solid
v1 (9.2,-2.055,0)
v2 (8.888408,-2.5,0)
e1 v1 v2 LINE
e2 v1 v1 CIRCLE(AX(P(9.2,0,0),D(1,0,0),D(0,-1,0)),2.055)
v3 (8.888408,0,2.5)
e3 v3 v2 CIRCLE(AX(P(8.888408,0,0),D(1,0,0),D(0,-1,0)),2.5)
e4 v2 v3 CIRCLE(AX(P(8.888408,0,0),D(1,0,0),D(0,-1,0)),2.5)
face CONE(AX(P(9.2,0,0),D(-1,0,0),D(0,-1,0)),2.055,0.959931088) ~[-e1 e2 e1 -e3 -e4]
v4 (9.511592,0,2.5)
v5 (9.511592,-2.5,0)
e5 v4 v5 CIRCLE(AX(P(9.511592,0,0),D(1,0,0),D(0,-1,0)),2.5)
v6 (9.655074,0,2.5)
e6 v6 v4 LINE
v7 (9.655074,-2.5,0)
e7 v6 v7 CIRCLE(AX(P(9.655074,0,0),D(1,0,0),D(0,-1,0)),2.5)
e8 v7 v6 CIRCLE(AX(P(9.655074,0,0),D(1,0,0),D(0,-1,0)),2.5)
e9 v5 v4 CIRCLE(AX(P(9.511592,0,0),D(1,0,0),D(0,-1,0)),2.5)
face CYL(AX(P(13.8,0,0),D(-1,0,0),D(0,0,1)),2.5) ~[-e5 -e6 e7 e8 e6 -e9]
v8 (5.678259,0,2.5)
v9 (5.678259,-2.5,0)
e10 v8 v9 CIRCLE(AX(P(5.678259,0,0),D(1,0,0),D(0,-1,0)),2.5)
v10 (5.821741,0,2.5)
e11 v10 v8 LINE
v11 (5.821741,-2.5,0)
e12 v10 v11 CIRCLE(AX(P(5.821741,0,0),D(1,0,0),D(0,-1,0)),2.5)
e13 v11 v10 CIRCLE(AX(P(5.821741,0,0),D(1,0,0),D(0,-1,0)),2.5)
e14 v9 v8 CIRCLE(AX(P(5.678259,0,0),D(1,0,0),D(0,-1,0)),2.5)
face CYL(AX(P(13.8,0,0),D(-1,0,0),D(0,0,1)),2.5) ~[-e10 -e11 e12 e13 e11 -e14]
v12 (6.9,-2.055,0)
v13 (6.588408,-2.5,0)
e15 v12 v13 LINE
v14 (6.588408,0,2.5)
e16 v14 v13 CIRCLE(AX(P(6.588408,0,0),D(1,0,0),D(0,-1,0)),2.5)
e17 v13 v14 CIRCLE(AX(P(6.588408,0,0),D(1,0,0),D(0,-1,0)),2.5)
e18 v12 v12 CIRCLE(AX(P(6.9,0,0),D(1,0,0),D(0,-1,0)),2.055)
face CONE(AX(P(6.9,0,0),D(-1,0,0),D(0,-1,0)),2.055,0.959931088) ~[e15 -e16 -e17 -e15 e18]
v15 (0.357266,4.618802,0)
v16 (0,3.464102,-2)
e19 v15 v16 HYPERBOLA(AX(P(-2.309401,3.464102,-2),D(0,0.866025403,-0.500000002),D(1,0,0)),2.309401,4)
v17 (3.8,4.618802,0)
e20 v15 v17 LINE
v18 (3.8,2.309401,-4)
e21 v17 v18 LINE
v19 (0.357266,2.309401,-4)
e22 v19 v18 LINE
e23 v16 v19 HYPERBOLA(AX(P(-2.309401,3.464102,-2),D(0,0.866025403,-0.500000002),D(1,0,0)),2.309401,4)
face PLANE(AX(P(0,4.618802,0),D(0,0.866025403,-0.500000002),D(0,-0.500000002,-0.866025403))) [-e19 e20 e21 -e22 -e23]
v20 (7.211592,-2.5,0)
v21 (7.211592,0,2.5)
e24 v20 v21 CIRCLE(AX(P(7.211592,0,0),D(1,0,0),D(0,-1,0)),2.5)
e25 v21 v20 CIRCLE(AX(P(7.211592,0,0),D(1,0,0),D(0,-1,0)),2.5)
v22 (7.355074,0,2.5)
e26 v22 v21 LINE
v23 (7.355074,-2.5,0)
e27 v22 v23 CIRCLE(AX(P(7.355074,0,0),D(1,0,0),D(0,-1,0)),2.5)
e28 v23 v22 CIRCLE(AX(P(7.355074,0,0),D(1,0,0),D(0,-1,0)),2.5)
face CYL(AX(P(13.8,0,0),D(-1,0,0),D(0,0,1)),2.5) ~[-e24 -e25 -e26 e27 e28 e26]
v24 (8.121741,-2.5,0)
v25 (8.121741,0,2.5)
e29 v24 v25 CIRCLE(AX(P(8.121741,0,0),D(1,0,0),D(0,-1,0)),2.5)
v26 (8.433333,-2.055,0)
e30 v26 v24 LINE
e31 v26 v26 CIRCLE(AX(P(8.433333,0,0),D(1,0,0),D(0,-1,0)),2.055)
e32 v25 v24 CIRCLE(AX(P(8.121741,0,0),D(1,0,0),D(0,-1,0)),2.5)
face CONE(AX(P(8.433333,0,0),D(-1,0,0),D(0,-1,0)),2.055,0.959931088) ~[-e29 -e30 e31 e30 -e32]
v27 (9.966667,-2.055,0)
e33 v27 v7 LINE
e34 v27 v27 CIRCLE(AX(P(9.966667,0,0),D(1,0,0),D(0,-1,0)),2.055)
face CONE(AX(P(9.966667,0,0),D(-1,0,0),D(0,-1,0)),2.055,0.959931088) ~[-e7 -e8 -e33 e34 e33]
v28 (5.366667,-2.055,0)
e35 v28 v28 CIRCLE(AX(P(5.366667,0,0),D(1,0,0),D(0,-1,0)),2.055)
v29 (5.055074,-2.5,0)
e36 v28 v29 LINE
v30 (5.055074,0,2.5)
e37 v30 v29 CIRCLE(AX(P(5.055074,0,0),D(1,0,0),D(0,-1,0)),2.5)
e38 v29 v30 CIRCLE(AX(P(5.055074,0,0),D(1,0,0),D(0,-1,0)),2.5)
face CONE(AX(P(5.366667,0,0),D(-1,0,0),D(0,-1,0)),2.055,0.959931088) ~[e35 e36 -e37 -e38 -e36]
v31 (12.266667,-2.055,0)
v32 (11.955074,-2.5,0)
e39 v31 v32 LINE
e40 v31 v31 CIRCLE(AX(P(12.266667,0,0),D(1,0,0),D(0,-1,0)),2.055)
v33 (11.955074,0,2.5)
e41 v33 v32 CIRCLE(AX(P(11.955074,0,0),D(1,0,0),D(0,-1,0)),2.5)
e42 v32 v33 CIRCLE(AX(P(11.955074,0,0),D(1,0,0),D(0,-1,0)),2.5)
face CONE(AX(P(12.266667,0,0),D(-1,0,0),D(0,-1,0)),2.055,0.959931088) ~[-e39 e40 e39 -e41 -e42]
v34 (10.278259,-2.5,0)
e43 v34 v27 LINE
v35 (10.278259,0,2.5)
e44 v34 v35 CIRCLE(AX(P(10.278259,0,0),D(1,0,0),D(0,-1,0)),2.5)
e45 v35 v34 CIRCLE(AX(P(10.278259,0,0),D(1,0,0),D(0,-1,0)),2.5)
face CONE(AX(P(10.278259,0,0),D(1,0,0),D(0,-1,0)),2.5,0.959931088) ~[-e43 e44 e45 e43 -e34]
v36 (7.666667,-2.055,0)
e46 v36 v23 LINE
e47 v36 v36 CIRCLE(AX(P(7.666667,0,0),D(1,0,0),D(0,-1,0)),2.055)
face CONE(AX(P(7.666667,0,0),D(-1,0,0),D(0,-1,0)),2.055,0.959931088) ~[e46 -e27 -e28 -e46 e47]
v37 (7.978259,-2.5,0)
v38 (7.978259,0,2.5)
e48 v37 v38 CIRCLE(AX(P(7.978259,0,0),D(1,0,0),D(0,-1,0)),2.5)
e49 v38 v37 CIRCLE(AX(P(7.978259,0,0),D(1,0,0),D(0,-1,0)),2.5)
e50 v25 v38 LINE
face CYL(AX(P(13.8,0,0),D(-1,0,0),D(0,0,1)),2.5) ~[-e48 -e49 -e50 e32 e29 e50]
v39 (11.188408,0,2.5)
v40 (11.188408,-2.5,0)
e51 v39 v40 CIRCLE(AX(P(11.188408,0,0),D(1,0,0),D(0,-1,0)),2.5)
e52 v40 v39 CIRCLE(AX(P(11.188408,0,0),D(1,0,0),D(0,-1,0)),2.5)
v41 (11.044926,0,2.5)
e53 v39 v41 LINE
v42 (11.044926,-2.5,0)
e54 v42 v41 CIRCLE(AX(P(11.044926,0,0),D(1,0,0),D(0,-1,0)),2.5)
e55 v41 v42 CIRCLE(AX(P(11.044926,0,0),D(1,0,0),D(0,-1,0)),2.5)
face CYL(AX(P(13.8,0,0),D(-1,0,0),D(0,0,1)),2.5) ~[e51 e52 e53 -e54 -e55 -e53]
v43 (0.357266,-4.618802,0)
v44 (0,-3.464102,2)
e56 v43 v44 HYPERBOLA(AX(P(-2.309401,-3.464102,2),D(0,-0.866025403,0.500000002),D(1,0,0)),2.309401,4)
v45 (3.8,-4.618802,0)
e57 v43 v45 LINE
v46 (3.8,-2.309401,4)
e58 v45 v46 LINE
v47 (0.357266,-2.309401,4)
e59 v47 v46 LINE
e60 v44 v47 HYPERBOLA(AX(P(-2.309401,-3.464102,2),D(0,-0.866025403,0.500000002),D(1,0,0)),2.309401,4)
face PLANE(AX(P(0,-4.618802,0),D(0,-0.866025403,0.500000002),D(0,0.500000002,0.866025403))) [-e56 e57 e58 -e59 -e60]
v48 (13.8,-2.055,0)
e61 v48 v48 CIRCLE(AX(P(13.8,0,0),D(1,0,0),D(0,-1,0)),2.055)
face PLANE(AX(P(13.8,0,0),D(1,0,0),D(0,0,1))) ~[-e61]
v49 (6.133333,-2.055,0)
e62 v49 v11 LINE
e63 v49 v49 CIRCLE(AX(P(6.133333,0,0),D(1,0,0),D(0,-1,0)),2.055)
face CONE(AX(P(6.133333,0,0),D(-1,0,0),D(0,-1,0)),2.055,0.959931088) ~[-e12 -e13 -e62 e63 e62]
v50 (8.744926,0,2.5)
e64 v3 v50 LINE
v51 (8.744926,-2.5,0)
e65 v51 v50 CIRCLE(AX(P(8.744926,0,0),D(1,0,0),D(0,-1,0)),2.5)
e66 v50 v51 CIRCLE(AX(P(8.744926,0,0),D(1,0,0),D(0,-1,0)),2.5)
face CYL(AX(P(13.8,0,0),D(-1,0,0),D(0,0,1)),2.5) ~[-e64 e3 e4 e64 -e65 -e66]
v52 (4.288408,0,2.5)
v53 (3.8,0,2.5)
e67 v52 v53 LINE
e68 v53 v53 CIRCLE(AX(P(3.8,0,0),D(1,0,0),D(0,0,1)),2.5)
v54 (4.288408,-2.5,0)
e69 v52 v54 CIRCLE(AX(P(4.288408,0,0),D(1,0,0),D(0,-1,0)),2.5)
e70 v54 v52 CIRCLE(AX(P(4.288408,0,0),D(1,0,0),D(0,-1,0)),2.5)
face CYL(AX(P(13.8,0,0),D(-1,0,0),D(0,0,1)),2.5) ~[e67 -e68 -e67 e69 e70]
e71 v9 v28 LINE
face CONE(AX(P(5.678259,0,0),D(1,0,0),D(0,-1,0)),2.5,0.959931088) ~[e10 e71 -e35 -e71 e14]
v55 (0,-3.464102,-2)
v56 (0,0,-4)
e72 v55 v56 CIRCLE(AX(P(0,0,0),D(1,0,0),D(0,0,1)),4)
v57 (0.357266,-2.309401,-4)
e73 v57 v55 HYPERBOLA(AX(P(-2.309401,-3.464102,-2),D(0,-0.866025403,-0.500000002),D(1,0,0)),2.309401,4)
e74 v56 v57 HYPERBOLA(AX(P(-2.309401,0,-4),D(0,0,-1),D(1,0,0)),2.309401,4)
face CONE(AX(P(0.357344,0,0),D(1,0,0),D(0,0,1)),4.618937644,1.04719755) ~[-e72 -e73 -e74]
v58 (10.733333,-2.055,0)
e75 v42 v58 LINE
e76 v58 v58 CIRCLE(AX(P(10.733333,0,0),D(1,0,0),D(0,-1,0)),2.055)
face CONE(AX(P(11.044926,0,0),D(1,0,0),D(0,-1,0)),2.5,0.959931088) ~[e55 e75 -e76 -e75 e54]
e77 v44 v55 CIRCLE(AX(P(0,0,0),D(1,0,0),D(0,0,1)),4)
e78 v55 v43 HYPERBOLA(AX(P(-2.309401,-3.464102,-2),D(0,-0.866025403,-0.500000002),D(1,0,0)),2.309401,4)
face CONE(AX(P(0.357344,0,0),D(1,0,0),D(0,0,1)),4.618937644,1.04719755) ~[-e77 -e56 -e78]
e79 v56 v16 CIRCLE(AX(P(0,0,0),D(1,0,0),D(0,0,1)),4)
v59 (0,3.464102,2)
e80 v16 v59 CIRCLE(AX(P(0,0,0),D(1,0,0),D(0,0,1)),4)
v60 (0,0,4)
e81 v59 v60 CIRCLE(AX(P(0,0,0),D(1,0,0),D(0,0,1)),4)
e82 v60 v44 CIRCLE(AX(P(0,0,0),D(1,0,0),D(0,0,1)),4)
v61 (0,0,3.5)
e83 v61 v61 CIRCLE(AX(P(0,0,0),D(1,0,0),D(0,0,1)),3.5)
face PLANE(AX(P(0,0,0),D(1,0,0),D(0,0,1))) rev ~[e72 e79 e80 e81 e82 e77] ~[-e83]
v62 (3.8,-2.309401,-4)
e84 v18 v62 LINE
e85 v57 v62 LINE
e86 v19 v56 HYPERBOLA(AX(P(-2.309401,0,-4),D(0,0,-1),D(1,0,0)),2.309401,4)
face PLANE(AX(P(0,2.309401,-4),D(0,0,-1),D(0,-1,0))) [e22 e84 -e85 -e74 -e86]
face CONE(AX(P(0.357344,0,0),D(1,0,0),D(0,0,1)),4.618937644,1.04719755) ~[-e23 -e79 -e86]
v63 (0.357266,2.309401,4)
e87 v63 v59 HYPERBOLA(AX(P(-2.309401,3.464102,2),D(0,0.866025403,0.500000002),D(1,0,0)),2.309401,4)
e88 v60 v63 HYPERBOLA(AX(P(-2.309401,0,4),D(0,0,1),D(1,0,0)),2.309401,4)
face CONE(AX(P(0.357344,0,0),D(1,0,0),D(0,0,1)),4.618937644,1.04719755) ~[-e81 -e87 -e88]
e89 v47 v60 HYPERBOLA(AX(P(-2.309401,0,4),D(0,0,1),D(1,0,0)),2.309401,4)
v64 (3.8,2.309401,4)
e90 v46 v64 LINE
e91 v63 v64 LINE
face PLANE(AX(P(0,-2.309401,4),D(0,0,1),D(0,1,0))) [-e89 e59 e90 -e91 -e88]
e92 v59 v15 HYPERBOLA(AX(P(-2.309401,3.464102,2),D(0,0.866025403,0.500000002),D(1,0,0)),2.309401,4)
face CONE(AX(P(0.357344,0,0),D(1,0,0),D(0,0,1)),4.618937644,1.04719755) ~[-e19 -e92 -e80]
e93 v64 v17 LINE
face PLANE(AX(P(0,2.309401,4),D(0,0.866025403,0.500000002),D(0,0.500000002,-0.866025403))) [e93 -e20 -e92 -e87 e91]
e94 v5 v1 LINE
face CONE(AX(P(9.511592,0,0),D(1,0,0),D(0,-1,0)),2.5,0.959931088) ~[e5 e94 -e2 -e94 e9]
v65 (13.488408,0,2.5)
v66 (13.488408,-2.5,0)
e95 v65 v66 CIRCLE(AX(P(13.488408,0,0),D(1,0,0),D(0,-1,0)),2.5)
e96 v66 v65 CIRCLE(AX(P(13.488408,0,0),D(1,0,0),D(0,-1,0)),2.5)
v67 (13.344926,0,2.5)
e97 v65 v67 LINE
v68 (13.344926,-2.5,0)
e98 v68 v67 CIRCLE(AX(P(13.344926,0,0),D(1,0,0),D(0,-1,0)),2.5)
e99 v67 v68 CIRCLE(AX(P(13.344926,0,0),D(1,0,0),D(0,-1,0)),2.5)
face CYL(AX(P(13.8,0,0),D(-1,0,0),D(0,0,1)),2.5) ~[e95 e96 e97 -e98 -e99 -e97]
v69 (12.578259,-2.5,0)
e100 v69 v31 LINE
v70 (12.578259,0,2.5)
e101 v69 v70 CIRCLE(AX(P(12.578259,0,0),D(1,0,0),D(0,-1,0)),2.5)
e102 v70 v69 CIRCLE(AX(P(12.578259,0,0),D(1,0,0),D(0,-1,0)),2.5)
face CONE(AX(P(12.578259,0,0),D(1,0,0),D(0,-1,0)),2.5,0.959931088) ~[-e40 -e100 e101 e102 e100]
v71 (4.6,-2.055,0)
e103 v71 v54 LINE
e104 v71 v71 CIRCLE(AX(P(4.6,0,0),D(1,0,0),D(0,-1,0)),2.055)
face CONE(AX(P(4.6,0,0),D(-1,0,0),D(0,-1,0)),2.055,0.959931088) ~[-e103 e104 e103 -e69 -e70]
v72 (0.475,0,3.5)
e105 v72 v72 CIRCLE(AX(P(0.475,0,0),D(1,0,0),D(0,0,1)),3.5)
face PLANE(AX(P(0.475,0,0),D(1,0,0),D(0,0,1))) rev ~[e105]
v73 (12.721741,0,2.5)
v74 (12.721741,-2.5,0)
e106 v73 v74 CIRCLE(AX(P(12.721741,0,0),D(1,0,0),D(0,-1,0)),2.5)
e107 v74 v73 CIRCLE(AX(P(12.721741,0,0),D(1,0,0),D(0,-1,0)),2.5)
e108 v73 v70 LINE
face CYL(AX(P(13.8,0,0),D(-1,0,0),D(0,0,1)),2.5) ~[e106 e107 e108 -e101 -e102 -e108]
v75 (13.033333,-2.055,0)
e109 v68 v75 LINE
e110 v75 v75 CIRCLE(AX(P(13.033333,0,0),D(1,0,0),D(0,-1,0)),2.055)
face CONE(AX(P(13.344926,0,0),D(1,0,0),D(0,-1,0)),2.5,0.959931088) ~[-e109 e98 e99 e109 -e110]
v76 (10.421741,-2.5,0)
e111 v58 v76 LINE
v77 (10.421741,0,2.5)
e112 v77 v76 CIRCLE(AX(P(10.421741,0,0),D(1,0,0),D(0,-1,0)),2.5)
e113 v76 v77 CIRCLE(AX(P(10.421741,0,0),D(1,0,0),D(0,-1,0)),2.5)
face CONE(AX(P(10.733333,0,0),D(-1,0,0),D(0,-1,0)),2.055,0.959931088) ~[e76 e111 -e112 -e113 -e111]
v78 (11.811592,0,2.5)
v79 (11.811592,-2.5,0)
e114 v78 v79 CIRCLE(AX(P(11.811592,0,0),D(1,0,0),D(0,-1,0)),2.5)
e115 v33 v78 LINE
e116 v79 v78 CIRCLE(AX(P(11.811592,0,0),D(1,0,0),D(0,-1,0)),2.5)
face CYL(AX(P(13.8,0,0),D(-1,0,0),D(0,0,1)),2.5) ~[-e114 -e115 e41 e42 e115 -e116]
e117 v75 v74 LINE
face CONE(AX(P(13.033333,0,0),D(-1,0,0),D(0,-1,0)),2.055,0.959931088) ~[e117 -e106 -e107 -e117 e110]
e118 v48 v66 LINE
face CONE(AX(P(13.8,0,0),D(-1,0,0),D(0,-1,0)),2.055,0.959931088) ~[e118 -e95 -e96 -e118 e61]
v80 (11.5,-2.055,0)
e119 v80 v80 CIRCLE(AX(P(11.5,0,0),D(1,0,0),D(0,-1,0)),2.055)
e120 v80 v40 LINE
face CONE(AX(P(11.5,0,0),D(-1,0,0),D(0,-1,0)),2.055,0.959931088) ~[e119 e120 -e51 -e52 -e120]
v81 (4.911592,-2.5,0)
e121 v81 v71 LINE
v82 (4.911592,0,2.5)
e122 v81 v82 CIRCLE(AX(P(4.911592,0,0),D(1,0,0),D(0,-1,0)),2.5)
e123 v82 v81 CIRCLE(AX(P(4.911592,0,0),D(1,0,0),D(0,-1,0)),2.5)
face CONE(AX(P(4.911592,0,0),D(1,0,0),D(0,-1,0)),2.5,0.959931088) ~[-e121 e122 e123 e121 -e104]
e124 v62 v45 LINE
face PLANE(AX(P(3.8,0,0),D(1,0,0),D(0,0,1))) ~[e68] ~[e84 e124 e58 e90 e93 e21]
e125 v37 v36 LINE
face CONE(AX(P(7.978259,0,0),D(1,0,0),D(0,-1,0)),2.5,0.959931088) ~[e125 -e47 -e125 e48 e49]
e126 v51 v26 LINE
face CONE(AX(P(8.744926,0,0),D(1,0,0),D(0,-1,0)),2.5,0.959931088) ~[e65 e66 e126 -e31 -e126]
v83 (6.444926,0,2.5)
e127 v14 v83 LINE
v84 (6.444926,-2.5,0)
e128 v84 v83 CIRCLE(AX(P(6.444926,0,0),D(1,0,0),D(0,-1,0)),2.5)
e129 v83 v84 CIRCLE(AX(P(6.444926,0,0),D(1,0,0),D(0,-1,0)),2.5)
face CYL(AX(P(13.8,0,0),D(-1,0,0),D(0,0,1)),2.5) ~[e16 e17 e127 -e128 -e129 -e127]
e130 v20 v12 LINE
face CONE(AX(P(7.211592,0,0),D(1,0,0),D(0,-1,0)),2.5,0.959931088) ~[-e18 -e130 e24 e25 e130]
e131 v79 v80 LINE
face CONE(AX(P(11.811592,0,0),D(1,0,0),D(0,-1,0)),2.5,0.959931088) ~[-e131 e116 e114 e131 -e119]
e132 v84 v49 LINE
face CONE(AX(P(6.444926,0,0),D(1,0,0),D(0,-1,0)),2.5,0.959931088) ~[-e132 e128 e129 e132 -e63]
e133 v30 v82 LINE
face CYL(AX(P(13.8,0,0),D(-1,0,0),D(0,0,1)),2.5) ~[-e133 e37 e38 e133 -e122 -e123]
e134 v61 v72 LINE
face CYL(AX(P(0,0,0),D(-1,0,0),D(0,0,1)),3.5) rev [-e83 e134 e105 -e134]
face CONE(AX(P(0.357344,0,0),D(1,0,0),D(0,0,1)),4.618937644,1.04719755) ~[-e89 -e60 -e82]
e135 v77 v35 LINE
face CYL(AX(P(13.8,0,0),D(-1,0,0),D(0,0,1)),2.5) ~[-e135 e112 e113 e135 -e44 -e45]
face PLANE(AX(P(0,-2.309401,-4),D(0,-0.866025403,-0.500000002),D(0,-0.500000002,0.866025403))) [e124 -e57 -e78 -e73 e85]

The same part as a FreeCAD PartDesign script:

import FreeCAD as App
import Part
import Sketcher
from FreeCAD import Vector
Q = App.Units.Quantity


def add_polygon(sketch, points):
    """Adds a closed chain of lines whose ends are joined by coincident constraints."""
    first, n = sketch.GeometryCount, len(points)
    for a, b in zip(points, points[1:] + points[:1]):
        sketch.addGeometry(Part.LineSegment(App.Vector(*a, 0), App.Vector(*b, 0)), False)
    for i in range(n):
        sketch.addConstraint(Sketcher.Constraint("Coincident", first + i, 2, first + (i + 1) % n, 1))

doc = App.newDocument("Part")
body = doc.addObject("PartDesign::Body", "Body")

# Sketch on XY plane
sketch1 = doc.addObject("Sketcher::SketchObject", "Sketch")
body.addObject(sketch1)
sketch1.AttachmentSupport = (doc.XY_Plane, [""])
sketch1.MapMode = "FlatFace"
add_polygon(sketch1, [(3.8, 2.5), (3.8, 4.618938), (0.357344, 4.618938), (0, 4), (0, 0), (13.8, 0), (13.8, 2.5)])  # lines 0-6
sketch1.addConstraint(Sketcher.Constraint("Vertical", 0))
sketch1.addConstraint(Sketcher.Constraint("Horizontal", 1))
sketch1.addConstraint(Sketcher.Constraint("Vertical", 3))
sketch1.addConstraint(Sketcher.Constraint("Horizontal", 4))
sketch1.addConstraint(Sketcher.Constraint("Vertical", 5))
sketch1.addConstraint(Sketcher.Constraint("Horizontal", 6))
sketch1.addConstraint(Sketcher.Constraint("Coincident", 3, 2, -1, 1))
sketch1.addConstraint(Sketcher.Constraint("DistanceX", 6, 2, 6, 1, 10.0))
sketch1.addConstraint(Sketcher.Constraint("DistanceY", 3, 2, 3, 1, 4.0))
sketch1.addConstraint(Sketcher.Constraint("Angle", 2, Q("-120 deg")))
sketch1.addConstraint(Sketcher.Constraint("DistanceX", 4, 1, 4, 2, 13.8))
sketch1.addConstraint(Sketcher.Constraint("DistanceY", 5, 1, 5, 2, 2.5))
sketch1.addConstraint(Sketcher.Constraint("DistanceX", 1, 2, 1, 1, 3.442656))
revolution = doc.addObject("PartDesign::Revolution", "Revolution")
body.addObject(revolution)
revolution.Profile = sketch1
revolution.ReferenceAxis = (sketch1, ["H_Axis"])
revolution.Angle = 360

# Sketch on YZ plane
sketch2 = doc.addObject("Sketcher::SketchObject", "Sketch001")
body.addObject(sketch2)
sketch2.AttachmentSupport = (doc.YZ_Plane, [""])
sketch2.MapMode = "FlatFace"
sketch2.addGeometry(Part.Circle(Vector(0, 0, 0), Vector(0, 0, 1), 4.665127), False)  # 0
add_polygon(sketch2, [(-2.309401, 4), (2.309401, 4), (4.618802, 0), (2.309401, -4), (-2.309401, -4), (-4.618802, 0)])  # lines 1-6
sketch2.addConstraint(Sketcher.Constraint("Horizontal", 1))
sketch2.addConstraint(Sketcher.Constraint("Horizontal", 4))
sketch2.addConstraint(Sketcher.Constraint("Coincident", 0, 3, -1, 1))
sketch2.addConstraint(Sketcher.Constraint("Symmetric", 1, 2, 4, 2, -1, 1))
sketch2.addConstraint(Sketcher.Constraint("Symmetric", 2, 2, 5, 2, -1, 1))
sketch2.addConstraint(Sketcher.Constraint("PointOnObject", 2, 2, -1))
sketch2.addConstraint(Sketcher.Constraint("Parallel", 3, 6))
sketch2.addConstraint(Sketcher.Constraint("Vertical", 1, 2, 3, 2))
sketch2.addConstraint(Sketcher.Constraint("Angle", 2, Q("-60 deg")))
sketch2.addConstraint(Sketcher.Constraint("DistanceY", -1, 1, 1, 2, 4.0))
sketch2.addConstraint(Sketcher.Constraint("Diameter", 0, 9.330254))
sketch2.addConstraint(Sketcher.Constraint("DistanceX", -1, 1, 1, 2, 2.309401))
pocket1 = doc.addObject("PartDesign::Pocket", "Pocket")
body.addObject(pocket1)
pocket1.Profile = sketch2
pocket1.Length = 3.8
pocket1.Reversed = True

# Sketch on YZ plane
sketch3 = doc.addObject("Sketcher::SketchObject", "Sketch002")
body.addObject(sketch3)
sketch3.AttachmentSupport = (doc.YZ_Plane, [""])
sketch3.MapMode = "FlatFace"
sketch3.addGeometry(Part.Circle(Vector(0, 0, 0), Vector(0, 0, 1), 3.5), False)
sketch3.addConstraint(Sketcher.Constraint("Coincident", 0, 3, -1, 1))
sketch3.addConstraint(Sketcher.Constraint("Diameter", 0, 7.0))
pocket2 = doc.addObject("PartDesign::Pocket", "Pocket001")
body.addObject(pocket2)
pocket2.Profile = sketch3
pocket2.Length = 0.475
pocket2.Reversed = True

# Sketch on XY plane
sketch4 = doc.addObject("Sketcher::SketchObject", "Sketch003")
body.addObject(sketch4)
sketch4.AttachmentSupport = (doc.XY_Plane, [""])
sketch4.MapMode = "FlatFace"
add_polygon(sketch4, [(4.6, -2.055), (4.288408, -2.5), (4.288408, -3.125), (4.911592, -3.125), (4.911592, -2.5)])  # lines 0-4
sketch4.addConstraint(Sketcher.Constraint("Vertical", 1))
sketch4.addConstraint(Sketcher.Constraint("Horizontal", 2))
sketch4.addConstraint(Sketcher.Constraint("Vertical", 3))
sketch4.addConstraint(Sketcher.Constraint("Horizontal", 0, 2, 3, 2))
sketch4.addConstraint(Sketcher.Constraint("Equal", 0, 4))
sketch4.addConstraint(Sketcher.Constraint("Angle", 0, Q("-125 deg")))
sketch4.addConstraint(Sketcher.Constraint("DistanceY", 0, 2, -1, 1, 2.5))
sketch4.addConstraint(Sketcher.Constraint("DistanceX", -1, 1, 4, 2, 4.6))
sketch4.addConstraint(Sketcher.Constraint("DistanceY", 1, 2, 1, 1, 0.625))
sketch4.addConstraint(Sketcher.Constraint("DistanceY", 1, 2, 4, 2, 1.07))
groove = doc.addObject("PartDesign::Groove", "Groove")
body.addObject(groove)
groove.Profile = sketch4
groove.ReferenceAxis = (sketch4, ["H_Axis"])
groove.Angle = 360
doc.recompute()

linearpattern = doc.addObject("PartDesign::LinearPattern", "LinearPattern")
body.addObject(linearpattern)
linearpattern.Originals = [groove]
linearpattern.Direction = (doc.X_Axis, [""])
linearpattern.Mode = "offset"
linearpattern.Offset = 0.766667
linearpattern.Occurrences = 13
body.Tip = linearpattern

doc.recompute()
